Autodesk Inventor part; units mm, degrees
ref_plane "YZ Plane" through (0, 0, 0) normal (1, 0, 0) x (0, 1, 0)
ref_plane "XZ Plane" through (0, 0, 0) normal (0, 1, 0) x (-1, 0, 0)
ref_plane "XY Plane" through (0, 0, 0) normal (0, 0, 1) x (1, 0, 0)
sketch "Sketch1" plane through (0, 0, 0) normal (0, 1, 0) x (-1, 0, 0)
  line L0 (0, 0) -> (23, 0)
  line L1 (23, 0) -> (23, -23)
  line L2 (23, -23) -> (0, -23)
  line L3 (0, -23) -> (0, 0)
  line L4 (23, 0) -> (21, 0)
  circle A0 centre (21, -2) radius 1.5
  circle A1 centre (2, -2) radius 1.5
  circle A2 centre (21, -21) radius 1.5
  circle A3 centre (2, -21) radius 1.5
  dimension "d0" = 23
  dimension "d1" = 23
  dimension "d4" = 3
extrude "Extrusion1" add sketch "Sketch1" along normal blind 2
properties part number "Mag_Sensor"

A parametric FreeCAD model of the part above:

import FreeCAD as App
import Part
import Sketcher

doc = App.newDocument("Part")
body = doc.addObject("PartDesign::Body", "Body")

# Sketch on XZ plane
sketch1 = doc.addObject("Sketcher::SketchObject", "Sketch")
body.addObject(sketch1)
sketch1.AttachmentSupport = (doc.XZ_Plane, [""])
sketch1.MapMode = "FlatFace"
sketch1.addGeometry([
    Part.LineSegment(App.Vector(-23, 0, 0), App.Vector(0, 0, 0)),  # 0
    Part.LineSegment(App.Vector(0, 0, 0), App.Vector(0, -23, 0)),  # 1
    Part.LineSegment(App.Vector(0, -23, 0), App.Vector(-23, -23, 0)),  # 2
    Part.LineSegment(App.Vector(-23, -23, 0), App.Vector(-23, 0, 0)),  # 3
    Part.Circle(App.Vector(-2, -21, 0), App.Vector(0, 0, 1), 1.5),  # 4
    Part.Circle(App.Vector(-21, -21, 0), App.Vector(0, 0, 1), 1.5),  # 5
    Part.Circle(App.Vector(-2, -2, 0), App.Vector(0, 0, 1), 1.5),  # 6
    Part.Circle(App.Vector(-21, -2, 0), App.Vector(0, 0, 1), 1.5),  # 7
], False)
sketch1.addConstraint([
    Sketcher.Constraint("Coincident", 0, 2, 1, 1),
    Sketcher.Constraint("Coincident", 1, 2, 2, 1),
    Sketcher.Constraint("Coincident", 2, 2, 3, 1),
    Sketcher.Constraint("Coincident", 3, 2, 0, 1),
    Sketcher.Constraint("Horizontal", 0),
    Sketcher.Constraint("Vertical", 1),
    Sketcher.Constraint("Horizontal", 2),
    Sketcher.Constraint("Vertical", 3),
    Sketcher.Constraint("Coincident", 0, 2, -1, 1),
    Sketcher.Constraint("Equal", 4, 5),
    Sketcher.Constraint("Equal", 5, 6),
    Sketcher.Constraint("Equal", 6, 7),
    Sketcher.Constraint("Horizontal", 4, 3, 5, 3),
    Sketcher.Constraint("Horizontal", 6, 3, 7, 3),
    Sketcher.Constraint("Vertical", 4, 3, 6, 3),
    Sketcher.Constraint("Vertical", 5, 3, 7, 3),
    Sketcher.Constraint("Equal", 2, 1),
    Sketcher.Constraint("Diameter", 4, 3.0),
    Sketcher.Constraint("DistanceX", 0, 1, 0, 2, 23.0),
    Sketcher.Constraint("DistanceX", 4, 3, -1, 1, 2.0),
    Sketcher.Constraint("DistanceY", 4, 3, -1, 1, 21.0),
    Sketcher.Constraint("DistanceX", 5, 3, -1, 1, 21.0),
    Sketcher.Constraint("DistanceY", 6, 3, -1, 1, 2.0),
])
pad1 = doc.addObject("PartDesign::Pad", "Pad")
body.addObject(pad1)
pad1.Profile = sketch1
pad1.Length = 2
pad1.Reversed = True

doc.recompute()
